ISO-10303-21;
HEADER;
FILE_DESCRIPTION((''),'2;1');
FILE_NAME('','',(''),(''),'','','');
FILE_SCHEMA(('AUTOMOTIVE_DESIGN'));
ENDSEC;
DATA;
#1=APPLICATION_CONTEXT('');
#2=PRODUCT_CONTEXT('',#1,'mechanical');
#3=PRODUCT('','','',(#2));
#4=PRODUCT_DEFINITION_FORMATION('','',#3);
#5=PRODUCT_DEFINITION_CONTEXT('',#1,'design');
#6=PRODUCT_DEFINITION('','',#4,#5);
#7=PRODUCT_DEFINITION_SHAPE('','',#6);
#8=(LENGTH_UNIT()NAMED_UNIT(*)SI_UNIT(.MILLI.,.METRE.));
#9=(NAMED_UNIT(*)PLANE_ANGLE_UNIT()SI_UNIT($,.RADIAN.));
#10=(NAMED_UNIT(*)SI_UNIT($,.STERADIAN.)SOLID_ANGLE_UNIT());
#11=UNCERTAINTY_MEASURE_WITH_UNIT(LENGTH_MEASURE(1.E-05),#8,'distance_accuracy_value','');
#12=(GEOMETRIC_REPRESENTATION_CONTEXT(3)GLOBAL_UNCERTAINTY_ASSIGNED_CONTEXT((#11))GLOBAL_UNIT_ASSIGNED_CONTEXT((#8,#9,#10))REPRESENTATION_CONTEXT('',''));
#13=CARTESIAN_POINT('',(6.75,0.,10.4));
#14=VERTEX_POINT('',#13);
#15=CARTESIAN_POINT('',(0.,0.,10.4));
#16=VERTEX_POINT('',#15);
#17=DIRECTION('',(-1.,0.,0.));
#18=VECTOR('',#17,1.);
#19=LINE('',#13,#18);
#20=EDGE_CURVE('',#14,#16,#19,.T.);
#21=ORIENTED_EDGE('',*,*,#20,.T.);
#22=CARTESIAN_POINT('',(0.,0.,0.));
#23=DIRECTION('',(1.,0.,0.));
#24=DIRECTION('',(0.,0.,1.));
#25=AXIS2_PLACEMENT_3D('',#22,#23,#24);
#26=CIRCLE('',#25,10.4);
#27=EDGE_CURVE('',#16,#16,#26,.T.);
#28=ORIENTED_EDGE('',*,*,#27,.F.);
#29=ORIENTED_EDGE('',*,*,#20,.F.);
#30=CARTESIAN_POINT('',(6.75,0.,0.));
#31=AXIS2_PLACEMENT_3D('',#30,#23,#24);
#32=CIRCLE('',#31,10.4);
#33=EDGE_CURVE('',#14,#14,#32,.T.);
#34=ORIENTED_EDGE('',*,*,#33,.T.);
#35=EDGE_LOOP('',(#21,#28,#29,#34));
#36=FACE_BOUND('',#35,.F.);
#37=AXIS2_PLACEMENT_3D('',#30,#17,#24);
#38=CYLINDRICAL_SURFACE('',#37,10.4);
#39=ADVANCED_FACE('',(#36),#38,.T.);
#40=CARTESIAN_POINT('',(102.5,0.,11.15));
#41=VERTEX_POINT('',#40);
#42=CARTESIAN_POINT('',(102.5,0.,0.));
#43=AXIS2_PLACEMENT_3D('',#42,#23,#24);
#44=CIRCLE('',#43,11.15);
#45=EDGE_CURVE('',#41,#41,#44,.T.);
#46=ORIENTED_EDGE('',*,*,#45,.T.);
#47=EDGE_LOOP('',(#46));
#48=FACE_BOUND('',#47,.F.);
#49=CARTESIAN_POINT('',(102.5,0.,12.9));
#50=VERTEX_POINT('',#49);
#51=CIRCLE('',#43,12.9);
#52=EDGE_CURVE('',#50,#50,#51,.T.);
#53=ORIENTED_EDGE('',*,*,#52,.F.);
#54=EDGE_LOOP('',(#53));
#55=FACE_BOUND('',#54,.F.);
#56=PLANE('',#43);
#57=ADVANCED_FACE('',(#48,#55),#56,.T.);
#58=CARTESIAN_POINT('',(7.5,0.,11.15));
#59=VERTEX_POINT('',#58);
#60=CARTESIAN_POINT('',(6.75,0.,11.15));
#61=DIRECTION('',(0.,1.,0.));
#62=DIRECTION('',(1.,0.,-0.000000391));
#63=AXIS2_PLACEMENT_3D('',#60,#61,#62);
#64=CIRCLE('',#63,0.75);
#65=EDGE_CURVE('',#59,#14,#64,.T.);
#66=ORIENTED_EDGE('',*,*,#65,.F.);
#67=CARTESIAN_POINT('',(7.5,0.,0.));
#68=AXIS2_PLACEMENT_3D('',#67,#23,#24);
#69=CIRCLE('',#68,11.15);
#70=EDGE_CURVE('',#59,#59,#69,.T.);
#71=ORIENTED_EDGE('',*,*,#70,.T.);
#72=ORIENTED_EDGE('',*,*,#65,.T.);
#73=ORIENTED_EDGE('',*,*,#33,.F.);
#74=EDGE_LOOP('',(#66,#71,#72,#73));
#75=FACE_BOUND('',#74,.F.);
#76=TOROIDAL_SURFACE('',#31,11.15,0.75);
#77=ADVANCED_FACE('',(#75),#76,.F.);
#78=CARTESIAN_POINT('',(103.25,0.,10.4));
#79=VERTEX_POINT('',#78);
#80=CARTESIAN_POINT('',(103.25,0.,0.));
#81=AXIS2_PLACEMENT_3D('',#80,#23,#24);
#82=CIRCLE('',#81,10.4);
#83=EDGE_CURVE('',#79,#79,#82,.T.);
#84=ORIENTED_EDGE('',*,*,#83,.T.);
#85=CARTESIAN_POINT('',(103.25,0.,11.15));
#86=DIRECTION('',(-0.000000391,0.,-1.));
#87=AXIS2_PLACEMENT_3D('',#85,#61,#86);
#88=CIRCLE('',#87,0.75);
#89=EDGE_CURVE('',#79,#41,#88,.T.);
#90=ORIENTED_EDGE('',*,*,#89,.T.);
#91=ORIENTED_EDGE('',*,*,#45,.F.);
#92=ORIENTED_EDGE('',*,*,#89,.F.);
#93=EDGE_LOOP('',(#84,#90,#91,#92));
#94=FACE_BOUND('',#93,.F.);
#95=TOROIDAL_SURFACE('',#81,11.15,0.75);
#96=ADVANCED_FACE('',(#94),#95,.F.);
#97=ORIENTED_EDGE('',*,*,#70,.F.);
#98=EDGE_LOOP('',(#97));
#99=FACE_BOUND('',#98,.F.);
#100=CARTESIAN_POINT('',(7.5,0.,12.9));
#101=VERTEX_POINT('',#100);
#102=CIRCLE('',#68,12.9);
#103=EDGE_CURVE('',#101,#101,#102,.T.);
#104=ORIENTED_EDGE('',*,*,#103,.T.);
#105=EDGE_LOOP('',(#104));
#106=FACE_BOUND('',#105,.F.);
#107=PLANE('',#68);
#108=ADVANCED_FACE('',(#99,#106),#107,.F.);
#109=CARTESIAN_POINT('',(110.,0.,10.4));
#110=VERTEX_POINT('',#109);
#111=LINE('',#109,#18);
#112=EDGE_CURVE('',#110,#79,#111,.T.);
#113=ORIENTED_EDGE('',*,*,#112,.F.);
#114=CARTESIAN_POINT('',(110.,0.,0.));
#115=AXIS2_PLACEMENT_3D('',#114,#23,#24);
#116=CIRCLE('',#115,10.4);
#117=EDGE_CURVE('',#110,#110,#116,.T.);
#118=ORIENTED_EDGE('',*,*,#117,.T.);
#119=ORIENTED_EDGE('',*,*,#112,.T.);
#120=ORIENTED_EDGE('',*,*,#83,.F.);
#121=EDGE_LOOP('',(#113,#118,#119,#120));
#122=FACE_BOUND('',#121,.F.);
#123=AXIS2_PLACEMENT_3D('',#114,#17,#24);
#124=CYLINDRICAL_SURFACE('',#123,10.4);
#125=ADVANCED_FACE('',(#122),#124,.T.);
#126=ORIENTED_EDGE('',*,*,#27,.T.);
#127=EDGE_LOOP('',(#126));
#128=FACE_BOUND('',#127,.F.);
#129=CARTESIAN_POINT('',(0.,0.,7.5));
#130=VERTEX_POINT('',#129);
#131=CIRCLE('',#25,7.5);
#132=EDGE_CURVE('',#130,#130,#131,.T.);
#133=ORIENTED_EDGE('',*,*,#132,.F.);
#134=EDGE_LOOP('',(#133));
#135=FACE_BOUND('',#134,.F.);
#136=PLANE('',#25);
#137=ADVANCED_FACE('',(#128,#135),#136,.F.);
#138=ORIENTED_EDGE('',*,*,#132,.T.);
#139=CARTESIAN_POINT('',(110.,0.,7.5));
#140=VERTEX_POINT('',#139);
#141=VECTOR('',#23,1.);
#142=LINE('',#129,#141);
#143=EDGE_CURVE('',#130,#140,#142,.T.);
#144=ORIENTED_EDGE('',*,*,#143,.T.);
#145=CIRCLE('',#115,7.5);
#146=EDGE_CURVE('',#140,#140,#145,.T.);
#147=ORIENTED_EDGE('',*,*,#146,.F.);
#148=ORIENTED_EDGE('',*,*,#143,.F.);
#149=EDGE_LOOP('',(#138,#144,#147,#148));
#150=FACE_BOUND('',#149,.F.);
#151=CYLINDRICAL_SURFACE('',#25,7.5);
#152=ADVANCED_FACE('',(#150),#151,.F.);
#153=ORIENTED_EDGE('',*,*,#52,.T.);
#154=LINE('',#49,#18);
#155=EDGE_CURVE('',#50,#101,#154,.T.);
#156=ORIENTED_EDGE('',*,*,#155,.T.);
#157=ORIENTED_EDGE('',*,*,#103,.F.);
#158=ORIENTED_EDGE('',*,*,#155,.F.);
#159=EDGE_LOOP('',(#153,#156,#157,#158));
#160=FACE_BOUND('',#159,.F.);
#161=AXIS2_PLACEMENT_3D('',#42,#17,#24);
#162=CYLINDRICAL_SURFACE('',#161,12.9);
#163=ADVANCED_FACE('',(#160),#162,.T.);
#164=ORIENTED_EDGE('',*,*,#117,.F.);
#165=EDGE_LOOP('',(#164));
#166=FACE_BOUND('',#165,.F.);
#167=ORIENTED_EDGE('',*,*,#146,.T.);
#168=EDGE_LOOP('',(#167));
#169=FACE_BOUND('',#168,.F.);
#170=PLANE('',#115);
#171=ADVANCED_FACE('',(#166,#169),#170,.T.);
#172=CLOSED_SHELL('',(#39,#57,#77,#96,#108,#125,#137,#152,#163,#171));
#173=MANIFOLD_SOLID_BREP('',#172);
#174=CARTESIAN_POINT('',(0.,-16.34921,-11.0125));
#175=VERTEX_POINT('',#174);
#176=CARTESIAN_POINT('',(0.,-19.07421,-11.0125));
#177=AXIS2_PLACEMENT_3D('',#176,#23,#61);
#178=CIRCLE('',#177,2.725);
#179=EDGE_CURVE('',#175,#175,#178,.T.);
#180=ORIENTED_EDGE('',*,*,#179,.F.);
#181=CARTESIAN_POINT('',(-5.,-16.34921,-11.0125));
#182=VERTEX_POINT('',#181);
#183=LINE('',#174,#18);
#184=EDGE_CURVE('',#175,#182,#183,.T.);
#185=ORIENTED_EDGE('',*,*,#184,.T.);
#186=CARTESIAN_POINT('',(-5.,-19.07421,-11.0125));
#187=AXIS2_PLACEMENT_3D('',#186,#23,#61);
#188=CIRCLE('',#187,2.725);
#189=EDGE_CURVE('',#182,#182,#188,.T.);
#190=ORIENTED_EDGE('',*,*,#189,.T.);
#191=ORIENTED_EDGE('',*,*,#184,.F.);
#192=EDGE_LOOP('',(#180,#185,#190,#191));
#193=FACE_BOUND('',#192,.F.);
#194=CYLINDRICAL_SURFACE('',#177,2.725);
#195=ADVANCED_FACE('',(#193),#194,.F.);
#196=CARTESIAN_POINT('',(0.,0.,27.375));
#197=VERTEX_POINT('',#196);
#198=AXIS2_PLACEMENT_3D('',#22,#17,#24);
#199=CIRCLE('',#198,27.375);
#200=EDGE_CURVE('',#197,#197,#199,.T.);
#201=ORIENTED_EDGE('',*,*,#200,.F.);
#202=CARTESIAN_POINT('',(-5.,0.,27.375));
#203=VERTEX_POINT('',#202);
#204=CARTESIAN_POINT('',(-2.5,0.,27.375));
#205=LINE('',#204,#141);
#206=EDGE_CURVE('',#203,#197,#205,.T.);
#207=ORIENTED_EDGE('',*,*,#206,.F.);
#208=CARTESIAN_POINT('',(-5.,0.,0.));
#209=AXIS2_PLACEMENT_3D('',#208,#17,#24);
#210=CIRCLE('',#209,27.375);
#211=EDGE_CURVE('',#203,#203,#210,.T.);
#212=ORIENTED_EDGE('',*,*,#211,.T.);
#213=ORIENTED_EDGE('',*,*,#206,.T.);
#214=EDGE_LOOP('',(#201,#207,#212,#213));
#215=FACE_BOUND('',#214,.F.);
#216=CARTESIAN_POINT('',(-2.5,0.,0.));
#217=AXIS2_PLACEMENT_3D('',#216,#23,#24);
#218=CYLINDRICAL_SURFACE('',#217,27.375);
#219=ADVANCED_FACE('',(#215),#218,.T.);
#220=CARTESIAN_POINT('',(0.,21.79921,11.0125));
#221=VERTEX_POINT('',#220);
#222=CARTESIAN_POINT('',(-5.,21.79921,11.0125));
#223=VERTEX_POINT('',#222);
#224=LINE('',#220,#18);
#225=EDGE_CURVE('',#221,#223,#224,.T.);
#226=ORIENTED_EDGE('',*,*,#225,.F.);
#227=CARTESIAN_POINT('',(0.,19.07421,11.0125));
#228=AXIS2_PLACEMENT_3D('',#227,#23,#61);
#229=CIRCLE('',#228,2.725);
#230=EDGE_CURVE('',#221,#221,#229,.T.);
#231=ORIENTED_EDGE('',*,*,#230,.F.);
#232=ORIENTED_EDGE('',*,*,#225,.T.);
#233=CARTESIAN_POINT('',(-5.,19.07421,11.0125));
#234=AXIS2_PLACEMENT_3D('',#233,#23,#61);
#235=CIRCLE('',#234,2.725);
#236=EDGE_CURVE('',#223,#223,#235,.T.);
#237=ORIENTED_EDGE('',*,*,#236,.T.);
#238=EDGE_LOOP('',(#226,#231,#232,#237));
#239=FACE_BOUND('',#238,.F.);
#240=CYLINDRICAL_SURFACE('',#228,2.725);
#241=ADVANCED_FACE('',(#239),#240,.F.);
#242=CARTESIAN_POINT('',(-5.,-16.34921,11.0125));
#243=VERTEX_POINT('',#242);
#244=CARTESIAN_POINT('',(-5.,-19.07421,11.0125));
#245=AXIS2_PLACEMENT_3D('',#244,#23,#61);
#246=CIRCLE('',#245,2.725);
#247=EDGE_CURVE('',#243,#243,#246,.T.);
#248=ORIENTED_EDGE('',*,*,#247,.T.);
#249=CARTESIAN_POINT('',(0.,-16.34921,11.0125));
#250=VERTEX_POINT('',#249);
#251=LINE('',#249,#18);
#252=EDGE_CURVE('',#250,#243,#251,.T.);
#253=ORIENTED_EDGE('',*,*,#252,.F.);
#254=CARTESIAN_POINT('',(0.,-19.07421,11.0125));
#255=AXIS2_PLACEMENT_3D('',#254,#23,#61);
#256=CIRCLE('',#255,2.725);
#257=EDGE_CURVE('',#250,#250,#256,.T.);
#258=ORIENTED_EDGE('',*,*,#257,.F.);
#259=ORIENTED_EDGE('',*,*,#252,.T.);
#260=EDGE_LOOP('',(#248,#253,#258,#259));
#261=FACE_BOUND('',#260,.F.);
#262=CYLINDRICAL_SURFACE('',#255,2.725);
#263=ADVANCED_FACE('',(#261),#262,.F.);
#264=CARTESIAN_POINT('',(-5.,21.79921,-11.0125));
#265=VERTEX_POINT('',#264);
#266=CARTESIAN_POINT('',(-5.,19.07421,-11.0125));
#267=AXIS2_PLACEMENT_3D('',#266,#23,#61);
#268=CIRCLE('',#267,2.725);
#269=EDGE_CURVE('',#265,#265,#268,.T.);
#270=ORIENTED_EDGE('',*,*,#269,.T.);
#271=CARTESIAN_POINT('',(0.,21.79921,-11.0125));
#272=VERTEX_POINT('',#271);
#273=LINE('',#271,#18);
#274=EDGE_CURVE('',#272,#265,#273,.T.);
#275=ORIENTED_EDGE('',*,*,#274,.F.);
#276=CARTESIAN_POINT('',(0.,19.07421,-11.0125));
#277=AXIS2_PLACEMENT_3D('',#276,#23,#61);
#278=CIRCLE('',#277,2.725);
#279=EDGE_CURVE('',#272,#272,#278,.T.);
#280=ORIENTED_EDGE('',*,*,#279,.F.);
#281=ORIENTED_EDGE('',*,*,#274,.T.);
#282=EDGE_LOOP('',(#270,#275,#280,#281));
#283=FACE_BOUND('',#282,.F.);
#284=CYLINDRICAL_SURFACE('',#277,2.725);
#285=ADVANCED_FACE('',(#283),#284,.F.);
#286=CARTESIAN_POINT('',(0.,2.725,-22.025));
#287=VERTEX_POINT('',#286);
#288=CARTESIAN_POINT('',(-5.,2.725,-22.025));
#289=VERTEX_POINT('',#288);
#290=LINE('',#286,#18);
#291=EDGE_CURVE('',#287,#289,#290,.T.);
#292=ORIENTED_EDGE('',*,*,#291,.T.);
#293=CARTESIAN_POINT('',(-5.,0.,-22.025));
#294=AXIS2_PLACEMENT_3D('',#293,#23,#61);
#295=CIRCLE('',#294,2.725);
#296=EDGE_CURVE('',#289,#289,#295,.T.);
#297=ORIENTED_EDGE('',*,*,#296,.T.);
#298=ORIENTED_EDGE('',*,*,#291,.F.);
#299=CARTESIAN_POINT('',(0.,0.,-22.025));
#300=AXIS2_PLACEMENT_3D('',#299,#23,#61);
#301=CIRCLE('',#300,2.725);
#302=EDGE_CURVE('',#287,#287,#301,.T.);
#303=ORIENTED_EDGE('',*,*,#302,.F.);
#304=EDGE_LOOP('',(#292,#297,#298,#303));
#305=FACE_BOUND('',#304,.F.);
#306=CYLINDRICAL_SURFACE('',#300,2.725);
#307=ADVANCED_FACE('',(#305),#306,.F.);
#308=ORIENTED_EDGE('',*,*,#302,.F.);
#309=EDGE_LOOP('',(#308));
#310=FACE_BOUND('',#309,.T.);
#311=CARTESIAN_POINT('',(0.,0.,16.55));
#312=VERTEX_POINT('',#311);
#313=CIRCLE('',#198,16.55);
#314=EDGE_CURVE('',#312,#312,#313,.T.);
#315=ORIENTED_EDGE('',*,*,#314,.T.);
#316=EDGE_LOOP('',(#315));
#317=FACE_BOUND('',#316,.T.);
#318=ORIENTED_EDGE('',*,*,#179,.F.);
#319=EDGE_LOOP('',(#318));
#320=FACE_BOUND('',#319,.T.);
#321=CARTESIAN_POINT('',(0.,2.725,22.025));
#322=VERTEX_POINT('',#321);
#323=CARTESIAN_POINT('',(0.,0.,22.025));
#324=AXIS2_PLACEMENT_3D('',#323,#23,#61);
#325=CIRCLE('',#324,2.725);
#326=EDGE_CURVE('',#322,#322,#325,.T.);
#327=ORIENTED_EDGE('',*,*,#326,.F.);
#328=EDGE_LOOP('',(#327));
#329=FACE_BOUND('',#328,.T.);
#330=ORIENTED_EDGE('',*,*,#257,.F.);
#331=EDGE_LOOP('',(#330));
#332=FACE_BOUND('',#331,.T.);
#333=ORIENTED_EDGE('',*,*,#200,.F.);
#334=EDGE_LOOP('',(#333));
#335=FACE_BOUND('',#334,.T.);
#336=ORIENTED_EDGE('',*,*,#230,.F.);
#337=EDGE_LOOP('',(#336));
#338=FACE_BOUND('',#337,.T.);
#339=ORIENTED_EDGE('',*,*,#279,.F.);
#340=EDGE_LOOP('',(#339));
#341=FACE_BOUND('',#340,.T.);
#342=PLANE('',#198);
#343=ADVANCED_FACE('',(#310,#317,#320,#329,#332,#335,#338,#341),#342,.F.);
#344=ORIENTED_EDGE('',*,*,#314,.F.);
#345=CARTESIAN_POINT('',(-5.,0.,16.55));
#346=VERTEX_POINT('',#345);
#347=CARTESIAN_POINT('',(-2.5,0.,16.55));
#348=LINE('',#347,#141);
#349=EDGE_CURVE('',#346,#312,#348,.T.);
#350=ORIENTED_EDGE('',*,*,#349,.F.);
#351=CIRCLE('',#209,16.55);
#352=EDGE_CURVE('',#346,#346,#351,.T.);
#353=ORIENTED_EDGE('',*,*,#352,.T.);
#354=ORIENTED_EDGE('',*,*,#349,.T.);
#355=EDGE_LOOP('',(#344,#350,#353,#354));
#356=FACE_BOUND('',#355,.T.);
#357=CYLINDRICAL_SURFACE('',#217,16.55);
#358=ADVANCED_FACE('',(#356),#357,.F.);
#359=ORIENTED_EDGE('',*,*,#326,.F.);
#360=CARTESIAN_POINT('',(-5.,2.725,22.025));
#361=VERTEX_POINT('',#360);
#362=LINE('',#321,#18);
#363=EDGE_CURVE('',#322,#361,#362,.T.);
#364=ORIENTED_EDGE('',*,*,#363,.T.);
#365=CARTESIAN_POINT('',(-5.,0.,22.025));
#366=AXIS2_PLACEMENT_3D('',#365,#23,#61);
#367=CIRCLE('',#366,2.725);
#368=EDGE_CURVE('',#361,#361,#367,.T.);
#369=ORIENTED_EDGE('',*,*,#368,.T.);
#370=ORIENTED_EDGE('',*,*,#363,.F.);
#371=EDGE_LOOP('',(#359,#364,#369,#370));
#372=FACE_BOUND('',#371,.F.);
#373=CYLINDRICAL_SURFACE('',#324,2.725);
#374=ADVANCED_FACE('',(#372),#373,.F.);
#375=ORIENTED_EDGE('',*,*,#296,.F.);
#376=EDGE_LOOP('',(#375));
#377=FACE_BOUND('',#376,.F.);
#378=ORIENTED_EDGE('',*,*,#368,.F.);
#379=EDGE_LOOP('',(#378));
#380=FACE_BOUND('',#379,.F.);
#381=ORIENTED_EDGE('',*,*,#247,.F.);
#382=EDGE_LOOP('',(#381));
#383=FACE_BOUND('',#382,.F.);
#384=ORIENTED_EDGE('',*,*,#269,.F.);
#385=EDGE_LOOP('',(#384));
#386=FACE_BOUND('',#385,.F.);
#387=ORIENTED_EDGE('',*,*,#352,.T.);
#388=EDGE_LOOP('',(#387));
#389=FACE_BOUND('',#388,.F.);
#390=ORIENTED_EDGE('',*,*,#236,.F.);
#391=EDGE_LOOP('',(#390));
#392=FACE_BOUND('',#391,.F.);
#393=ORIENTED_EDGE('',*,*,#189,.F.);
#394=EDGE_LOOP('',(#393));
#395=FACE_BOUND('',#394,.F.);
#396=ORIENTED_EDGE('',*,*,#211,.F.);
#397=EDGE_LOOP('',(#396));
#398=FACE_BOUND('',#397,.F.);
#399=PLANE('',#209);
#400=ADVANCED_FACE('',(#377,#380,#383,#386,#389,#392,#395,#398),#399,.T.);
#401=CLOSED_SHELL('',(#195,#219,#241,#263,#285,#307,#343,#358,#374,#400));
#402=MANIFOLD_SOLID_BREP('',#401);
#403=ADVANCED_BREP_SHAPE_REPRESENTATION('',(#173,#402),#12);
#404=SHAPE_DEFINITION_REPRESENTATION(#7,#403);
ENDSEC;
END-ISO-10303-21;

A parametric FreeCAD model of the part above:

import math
import FreeCAD as App
import Part
import Sketcher

V = App.Vector
Q = App.Units.Quantity


def add_polygon(sketch, points):
    """Adds a closed chain of lines whose ends are joined by coincident constraints."""
    first, n = sketch.GeometryCount, len(points)
    for a, b in zip(points, points[1:] + points[:1]):
        sketch.addGeometry(Part.LineSegment(App.Vector(*a, 0), App.Vector(*b, 0)), False)
    for i in range(n):
        sketch.addConstraint(Sketcher.Constraint("Coincident", first + i, 2, first + (i + 1) % n, 1))

doc = App.newDocument("Part")
body = doc.addObject("PartDesign::Body", "Body")

# Sketch on XZ plane
sketch1 = body.newObject("Sketcher::SketchObject", "Sketch")
sketch1.AttachmentSupport = (doc.getObject("XZ_Plane"), [""])
sketch1.MapMode = "FlatFace"
add_polygon(sketch1, [(-5, 27), (-5, 17), (0, 17), (0, 27)])  # lines 0-3
sketch1.addConstraint(Sketcher.Constraint("Vertical", 0))
sketch1.addConstraint(Sketcher.Constraint("Horizontal", 1))
sketch1.addConstraint(Sketcher.Constraint("Vertical", 2))
sketch1.addConstraint(Sketcher.Constraint("Horizontal", 3))
sketch1.addConstraint(Sketcher.Constraint("PointOnObject", 1, 2, -2))
sketch1.addConstraint(Sketcher.Constraint("DistanceX", 1, 1, 1, 2, Q("5 mm")))
sketch1.addConstraint(Sketcher.Constraint("DistanceY", 0, 2, 0, 1, Q("10.825 mm")))
sketch1.addConstraint(Sketcher.Constraint("DistanceY", -1, 1, 0, 2, Q("16.55 mm")))
revolution = body.newObject("PartDesign::Revolution", "Revolution")
revolution.Profile = sketch1
revolution.ReferenceAxis = (sketch1, ["H_Axis"])
revolution.Angle = 360

# Sketch on YZ plane
sketch2 = body.newObject("Sketcher::SketchObject", "Sketch001")
sketch2.AttachmentSupport = (doc.getObject("YZ_Plane"), [""])
sketch2.MapMode = "FlatFace"
sketch2.addGeometry(Part.Circle(V(0, 22, 0), V(0, 0, 1), 2.7), False)
sketch2.addGeometry(Part.Circle(V(-19.1, 11, 0), V(0, 0, 1), 2.7), False)
sketch2.addGeometry(Part.Circle(V(-19.1, -11, 0), V(0, 0, 1), 2.7), False)
sketch2.addGeometry(Part.Circle(V(0, -22, 0), V(0, 0, 1), 2.7), False)
sketch2.addGeometry(Part.Circle(V(19.1, -11, 0), V(0, 0, 1), 2.7), False)
sketch2.addGeometry(Part.Circle(V(19.1, 11, 0), V(0, 0, 1), 2.7), False)
sketch2.addConstraint(Sketcher.Constraint("Equal", 0, 1))
sketch2.addConstraint(Sketcher.Constraint("Equal", 1, 2))
sketch2.addConstraint(Sketcher.Constraint("Equal", 2, 3))
sketch2.addConstraint(Sketcher.Constraint("Equal", 3, 4))
sketch2.addConstraint(Sketcher.Constraint("Equal", 4, 5))
sketch2.addConstraint(Sketcher.Constraint("Symmetric", 0, 3, 3, 3, -1, 1))
sketch2.addConstraint(Sketcher.Constraint("Symmetric", 1, 3, 4, 3, -1, 1))
sketch2.addConstraint(Sketcher.Constraint("Symmetric", 2, 3, 5, 3, -1, 1))
sketch2.addConstraint(Sketcher.Constraint("Symmetric", 2, 3, 4, 3, -2))
sketch2.addConstraint(Sketcher.Constraint("PointOnObject", 0, 3, -2))
sketch2.addConstraint(Sketcher.Constraint("Diameter", 0, Q("5.45 mm")))
sketch2.addConstraint(Sketcher.Constraint("DistanceY", 3, 3, 0, 3, Q("44.05 mm")))
sketch2.addConstraint(Sketcher.Constraint("DistanceY", 2, 3, 1, 3, Q("22.025 mm")))
sketch2.addConstraint(Sketcher.Constraint("DistanceX", 1, 3, -1, 1, Q("19.07421 mm")))
pocket1 = body.newObject("PartDesign::Pocket", "Pocket")
pocket1.Profile = sketch2
pocket1.Length = 25
body2 = doc.addObject("PartDesign::Body", "Body001")

# Sketch on XZ plane
sketch3 = body2.newObject("Sketcher::SketchObject", "Sketch002")
sketch3.AttachmentSupport = (doc.getObject("XZ_Plane001"), [""])
sketch3.MapMode = "FlatFace"
sketch3.addGeometry(Part.LineSegment(V(0, 10.4, 0), V(0, 7.5, 0)), False)
sketch3.addGeometry(Part.LineSegment(V(0, 7.5, 0), V(110, 7.5, 0)), False)
sketch3.addGeometry(Part.LineSegment(V(110, 7.5, 0), V(110, 10.4, 0)), False)
sketch3.addGeometry(Part.LineSegment(V(110, 10.4, 0), V(103.2, 10.4, 0)), False)
sketch3.addGeometry(Part.ArcOfCircle(Part.Circle(V(103.3, 11.2, 0), V(0, 0, 1), 0.8), math.radians(-180), math.radians(-90)), False)
sketch3.addGeometry(Part.LineSegment(V(102.5, 11.2, 0), V(102.5, 12.9, 0)), False)
sketch3.addGeometry(Part.LineSegment(V(102.5, 12.9, 0), V(7.5, 12.9, 0)), False)
sketch3.addGeometry(Part.LineSegment(V(7.5, 12.9, 0), V(7.5, 11.2, 0)), False)
sketch3.addGeometry(Part.ArcOfCircle(Part.Circle(V(6.7, 11.2, 0), V(0, 0, 1), 0.8), math.radians(-90), math.radians(0)), False)
sketch3.addGeometry(Part.LineSegment(V(6.8, 10.4, 0), V(0, 10.4, 0)), False)
sketch3.addConstraint(Sketcher.Constraint("Coincident", 0, 2, 1, 1))
sketch3.addConstraint(Sketcher.Constraint("Coincident", 1, 2, 2, 1))
sketch3.addConstraint(Sketcher.Constraint("Coincident", 2, 2, 3, 1))
sketch3.addConstraint(Sketcher.Constraint("Tangent", 3, 2, 4, 2))
sketch3.addConstraint(Sketcher.Constraint("Tangent", 4, 1, 5, 1))
sketch3.addConstraint(Sketcher.Constraint("Coincident", 5, 2, 6, 1))
sketch3.addConstraint(Sketcher.Constraint("Coincident", 6, 2, 7, 1))
sketch3.addConstraint(Sketcher.Constraint("Tangent", 7, 2, 8, 2))
sketch3.addConstraint(Sketcher.Constraint("Tangent", 8, 1, 9, 1))
sketch3.addConstraint(Sketcher.Constraint("Coincident", 9, 2, 0, 1))
sketch3.addConstraint(Sketcher.Constraint("Vertical", 0))
sketch3.addConstraint(Sketcher.Constraint("Horizontal", 1))
sketch3.addConstraint(Sketcher.Constraint("Vertical", 2))
sketch3.addConstraint(Sketcher.Constraint("Horizontal", 3))
sketch3.addConstraint(Sketcher.Constraint("Vertical", 5))
sketch3.addConstraint(Sketcher.Constraint("Horizontal", 6))
sketch3.addConstraint(Sketcher.Constraint("Vertical", 7))
sketch3.addConstraint(Sketcher.Constraint("Horizontal", 9))
sketch3.addConstraint(Sketcher.Constraint("Equal", 4, 8))
sketch3.addConstraint(Sketcher.Constraint("PointOnObject", 0, 2, -2))
sketch3.addConstraint(Sketcher.Constraint("Horizontal", 4, 3, 8, 3))
sketch3.addConstraint(Sketcher.Constraint("Equal", 3, 9))
sketch3.addConstraint(Sketcher.Constraint("DistanceX", 1, 1, 1, 2, Q("110 mm")))
sketch3.addConstraint(Sketcher.Constraint("DistanceX", 6, 2, 6, 1, Q("95 mm")))
sketch3.addConstraint(Sketcher.Constraint("Radius", 4, Q("0.75 mm")))
sketch3.addConstraint(Sketcher.Constraint("DistanceY", 0, 2, 0, 1, Q("2.9 mm")))
sketch3.addConstraint(Sketcher.Constraint("DistanceY", 5, 1, 5, 2, Q("1.75 mm")))
sketch3.addConstraint(Sketcher.Constraint("DistanceY", -1, 1, 0, 2, Q("7.5 mm")))
revolution2 = body2.newObject("PartDesign::Revolution", "Revolution001")
revolution2.Profile = sketch3
revolution2.ReferenceAxis = (sketch3, ["H_Axis"])
revolution2.Angle = 360

doc.recompute()
